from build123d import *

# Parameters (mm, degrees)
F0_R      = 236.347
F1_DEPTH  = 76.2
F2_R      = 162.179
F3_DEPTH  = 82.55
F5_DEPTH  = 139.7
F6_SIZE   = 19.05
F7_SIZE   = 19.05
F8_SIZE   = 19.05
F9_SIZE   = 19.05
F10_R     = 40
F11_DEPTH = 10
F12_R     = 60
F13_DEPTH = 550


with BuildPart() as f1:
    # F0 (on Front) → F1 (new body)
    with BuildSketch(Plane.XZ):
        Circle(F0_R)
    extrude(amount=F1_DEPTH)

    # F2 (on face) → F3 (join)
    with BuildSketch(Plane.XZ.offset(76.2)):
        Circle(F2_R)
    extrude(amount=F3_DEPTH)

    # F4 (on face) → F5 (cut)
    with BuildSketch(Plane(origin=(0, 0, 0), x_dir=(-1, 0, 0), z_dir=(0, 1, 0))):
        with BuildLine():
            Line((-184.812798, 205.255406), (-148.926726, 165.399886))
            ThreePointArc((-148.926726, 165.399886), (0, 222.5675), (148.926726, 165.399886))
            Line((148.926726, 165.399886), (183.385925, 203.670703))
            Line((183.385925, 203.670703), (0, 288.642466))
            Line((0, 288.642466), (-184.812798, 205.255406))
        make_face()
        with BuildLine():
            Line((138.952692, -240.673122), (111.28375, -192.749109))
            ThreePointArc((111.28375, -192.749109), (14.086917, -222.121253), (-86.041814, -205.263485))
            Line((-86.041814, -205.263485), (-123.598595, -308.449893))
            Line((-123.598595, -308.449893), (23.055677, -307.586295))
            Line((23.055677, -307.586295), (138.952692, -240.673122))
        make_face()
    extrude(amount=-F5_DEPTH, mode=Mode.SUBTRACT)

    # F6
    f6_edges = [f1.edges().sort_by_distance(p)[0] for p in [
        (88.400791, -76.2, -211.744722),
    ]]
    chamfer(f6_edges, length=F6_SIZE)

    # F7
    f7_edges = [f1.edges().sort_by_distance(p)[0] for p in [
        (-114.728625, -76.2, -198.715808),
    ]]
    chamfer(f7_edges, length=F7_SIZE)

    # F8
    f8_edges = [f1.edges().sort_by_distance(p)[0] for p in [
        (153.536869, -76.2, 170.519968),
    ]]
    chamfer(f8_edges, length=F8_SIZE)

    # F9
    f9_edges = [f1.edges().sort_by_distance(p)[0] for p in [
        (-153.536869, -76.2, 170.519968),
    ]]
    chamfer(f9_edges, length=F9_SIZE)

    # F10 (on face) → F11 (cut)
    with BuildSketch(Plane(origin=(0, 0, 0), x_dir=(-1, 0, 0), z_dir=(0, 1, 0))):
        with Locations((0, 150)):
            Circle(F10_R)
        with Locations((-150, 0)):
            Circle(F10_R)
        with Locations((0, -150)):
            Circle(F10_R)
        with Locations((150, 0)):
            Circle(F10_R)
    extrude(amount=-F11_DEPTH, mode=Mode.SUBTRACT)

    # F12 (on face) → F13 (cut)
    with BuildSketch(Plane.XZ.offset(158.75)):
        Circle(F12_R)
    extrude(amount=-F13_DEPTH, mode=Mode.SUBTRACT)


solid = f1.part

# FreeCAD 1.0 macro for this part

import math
import FreeCAD as App
import Part
import Sketcher
from FreeCAD import Vector
Q = App.Units.Quantity


def edges_at(feature, points):
    """Names of the edges that pass closest to the given points."""
    edges = feature.Shape.Edges
    near = lambda p: min(range(len(edges)), key=lambda i: edges[i].distToShape(Part.Vertex(*p))[0])
    return sorted({f"Edge{near(p) + 1}" for p in points})

doc = App.newDocument("Part")
body = doc.addObject("PartDesign::Body", "Body")

# Sketch on XZ plane
sketch1 = doc.addObject("Sketcher::SketchObject", "Sketch")
body.addObject(sketch1)
sketch1.AttachmentSupport = (doc.XZ_Plane, [""])
sketch1.MapMode = "FlatFace"
sketch1.addGeometry(Part.Circle(Vector(0, 0, 0), Vector(0, 0, 1), 236.347), False)
sketch1.addConstraint([
    Sketcher.Constraint("Coincident", 0, 3, -1, 1),
    Sketcher.Constraint("Diameter", 0, Q("18.61 in")),
])
pad1 = doc.addObject("PartDesign::Pad", "Pad")
body.addObject(pad1)
pad1.Profile = sketch1
pad1.Length = Q("3 in")

# Sketch on XZ plane
sketch2 = doc.addObject("Sketcher::SketchObject", "Sketch001")
body.addObject(sketch2)
sketch2.AttachmentSupport = (doc.XZ_Plane, [""])
sketch2.MapMode = "FlatFace"
sketch2.AttachmentOffset = App.Placement(Vector(0, 0, 3 * 25.4), App.Rotation())
sketch2.addGeometry(Part.Circle(Vector(0, 0, 0), Vector(0, 0, 1), 162.179), False)
sketch2.addConstraint([
    Sketcher.Constraint("Coincident", 0, 3, -1, 1),
    Sketcher.Constraint("Diameter", 0, Q("12.77 in")),
])
pad2 = doc.addObject("PartDesign::Pad", "Pad001")
body.addObject(pad2)
pad2.Profile = sketch2
pad2.Length = Q("3.25 in")

# Sketch on XZ plane
sketch3 = doc.addObject("Sketcher::SketchObject", "Sketch002")
body.addObject(sketch3)
sketch3.AttachmentSupport = (doc.XZ_Plane, [""])
sketch3.MapMode = "FlatFace"
sketch3.addGeometry([
    Part.LineSegment(Vector(184.812798, 205.255406, 0), Vector(148.926726, 165.399886, 0)),  # 0
    Part.ArcOfCircle(Part.Circle(Vector(0, 0, 0), Vector(0, 0, 1), 222.5675), math.radians(48), math.radians(132)),  # 1
    Part.LineSegment(Vector(-148.926726, 165.399886, 0), Vector(-183.385925, 203.670703, 0)),  # 2
    Part.LineSegment(Vector(-183.385925, 203.670703, 0), Vector(0, 288.642466, 0)),  # 3
    Part.LineSegment(Vector(0, 288.642466, 0), Vector(184.812798, 205.255406, 0)),  # 4
    Part.LineSegment(Vector(-138.952692, -240.673122, 0), Vector(-111.28375, -192.749109, 0)),  # 5
    Part.ArcOfCircle(Part.Circle(Vector(0, -0.000005, 0), Vector(0, 0, 1), 222.567495), math.radians(-120.000001), math.radians(-67.25767)),  # 6
    Part.LineSegment(Vector(86.041814, -205.263485, 0), Vector(123.598595, -308.449893, 0)),  # 7
    Part.LineSegment(Vector(123.598595, -308.449893, 0), Vector(-23.055677, -307.586295, 0)),  # 8
    Part.LineSegment(Vector(-23.055677, -307.586295, 0), Vector(-138.952692, -240.673122, 0)),  # 9
], False)
sketch3.addConstraint([
    Sketcher.Constraint("Coincident", 0, 2, 1, 1),
    Sketcher.Constraint("Coincident", 1, 2, 2, 1),
    Sketcher.Constraint("Coincident", 2, 2, 3, 1),
    Sketcher.Constraint("Coincident", 3, 2, 4, 1),
    Sketcher.Constraint("Coincident", 4, 2, 0, 1),
    Sketcher.Constraint("Coincident", 5, 2, 6, 1),
    Sketcher.Constraint("Coincident", 6, 2, 7, 1),
    Sketcher.Constraint("Coincident", 7, 2, 8, 1),
    Sketcher.Constraint("Coincident", 8, 2, 9, 1),
    Sketcher.Constraint("Coincident", 9, 2, 5, 1),
    Sketcher.Constraint("Coincident", 1, 3, -1, 1),
    Sketcher.Constraint("Coincident", 6, 3, -1, 1),
    Sketcher.Constraint("PointOnObject", 3, 2, -2),
    Sketcher.Constraint("Perpendicular", 5, 9),
    Sketcher.Constraint("Horizontal", 0, 2, 1, 2),
    Sketcher.Constraint("Angle", 0, Q("-132 deg")),
    Sketcher.Constraint("Angle", 2, Q("132 deg")),
    Sketcher.Constraint("Angle", 5, Q("60 deg")),
    Sketcher.Constraint("Angle", 7, Q("-70 deg")),
    Sketcher.Constraint("Radius", 1, Q("8.7625 in")),
    Sketcher.Constraint("Radius", 6, Q("8.7624998 in")),
    Sketcher.Constraint("DistanceY", 7, 2, 8, 2, Q("0.0339999 in")),
    Sketcher.Constraint("DistanceX", 2, 2, 1, 2, 34.459199),
    Sketcher.Constraint("DistanceX", 6, 3, 4, 2, 184.812798),
    Sketcher.Constraint("Distance", 3, 202.115309),
    Sketcher.Constraint("Distance", 4, 202.753969),
    Sketcher.Constraint("Distance", 7, 109.808682),
    Sketcher.Constraint("DistanceX", 5, 2, -1, 1, 111.28375),
    Sketcher.Constraint("DistanceY", 9, 2, -1, 1, 240.673122),
    Sketcher.Constraint("DistanceY", 6, 2, 6, 3, 205.26348),
])
pocket1 = doc.addObject("PartDesign::Pocket", "Pocket")
body.addObject(pocket1)
pocket1.Profile = sketch3
pocket1.Length = Q("5.5 in")
pocket1.Reversed = True
doc.recompute()

chamfer = doc.addObject("PartDesign::Chamfer", "Chamfer")
body.addObject(chamfer)
chamfer.Base = (pocket1, edges_at(pocket1, [(88.401, -76.2, -211.745)]))
chamfer.Size = Q("0.75 in")
doc.recompute()

chamfer2 = doc.addObject("PartDesign::Chamfer", "Chamfer001")
body.addObject(chamfer2)
chamfer2.Base = (chamfer, edges_at(chamfer, [(-114.729, -76.2, -198.716)]))
chamfer2.Size = Q("0.75 in")
doc.recompute()

chamfer3 = doc.addObject("PartDesign::Chamfer", "Chamfer002")
body.addObject(chamfer3)
chamfer3.Base = (chamfer2, edges_at(chamfer2, [(153.537, -76.2, 170.52)]))
chamfer3.Size = Q("0.75 in")
doc.recompute()

chamfer4 = doc.addObject("PartDesign::Chamfer", "Chamfer003")
body.addObject(chamfer4)
chamfer4.Base = (chamfer3, edges_at(chamfer3, [(-153.537, -76.2, 170.52)]))
chamfer4.Size = Q("0.75 in")

# Sketch on XZ plane
sketch4 = doc.addObject("Sketcher::SketchObject", "Sketch003")
body.addObject(sketch4)
sketch4.AttachmentSupport = (doc.XZ_Plane, [""])
sketch4.MapMode = "FlatFace"
sketch4.addGeometry([
    Part.Circle(Vector(0, 150, 0), Vector(0, 0, 1), 40),
    Part.Circle(Vector(150, 0, 0), Vector(0, 0, 1), 40),
    Part.Circle(Vector(0, -150, 0), Vector(0, 0, 1), 40),
    Part.Circle(Vector(-150, 0, 0), Vector(0, 0, 1), 40),
], False)
sketch4.addConstraint([
    Sketcher.Constraint("Equal", 0, 1),
    Sketcher.Constraint("Equal", 1, 2),
    Sketcher.Constraint("Equal", 2, 3),
    Sketcher.Constraint("Symmetric", 0, 3, 2, 3, -1, 1),
    Sketcher.Constraint("Symmetric", 1, 3, 3, 3, -1, 1),
    Sketcher.Constraint("PointOnObject", 0, 3, -2),
    Sketcher.Constraint("PointOnObject", 1, 3, -1),
    Sketcher.Constraint("Diameter", 0, 80.0),
    Sketcher.Constraint("DistanceY", -1, 1, 0, 3, 150.0),
    Sketcher.Constraint("DistanceX", -1, 1, 1, 3, 150.0),
])
pocket2 = doc.addObject("PartDesign::Pocket", "Pocket001")
body.addObject(pocket2)
pocket2.Profile = sketch4
pocket2.Length = 10
pocket2.Reversed = True

# Sketch on XZ plane
sketch5 = doc.addObject("Sketcher::SketchObject", "Sketch004")
body.addObject(sketch5)
sketch5.AttachmentSupport = (doc.XZ_Plane, [""])
sketch5.MapMode = "FlatFace"
sketch5.AttachmentOffset = App.Placement(Vector(0, 0, 6.25 * 25.4), App.Rotation())
sketch5.addGeometry(Part.Circle(Vector(0, 0, 0), Vector(0, 0, 1), 60), False)
sketch5.addConstraint([
    Sketcher.Constraint("Coincident", 0, 3, -1, 1),
    Sketcher.Constraint("Diameter", 0, 120.0),
])
pocket3 = doc.addObject("PartDesign::Pocket", "Pocket002")
body.addObject(pocket3)
pocket3.Profile = sketch5
pocket3.Length = 550

doc.recompute()
